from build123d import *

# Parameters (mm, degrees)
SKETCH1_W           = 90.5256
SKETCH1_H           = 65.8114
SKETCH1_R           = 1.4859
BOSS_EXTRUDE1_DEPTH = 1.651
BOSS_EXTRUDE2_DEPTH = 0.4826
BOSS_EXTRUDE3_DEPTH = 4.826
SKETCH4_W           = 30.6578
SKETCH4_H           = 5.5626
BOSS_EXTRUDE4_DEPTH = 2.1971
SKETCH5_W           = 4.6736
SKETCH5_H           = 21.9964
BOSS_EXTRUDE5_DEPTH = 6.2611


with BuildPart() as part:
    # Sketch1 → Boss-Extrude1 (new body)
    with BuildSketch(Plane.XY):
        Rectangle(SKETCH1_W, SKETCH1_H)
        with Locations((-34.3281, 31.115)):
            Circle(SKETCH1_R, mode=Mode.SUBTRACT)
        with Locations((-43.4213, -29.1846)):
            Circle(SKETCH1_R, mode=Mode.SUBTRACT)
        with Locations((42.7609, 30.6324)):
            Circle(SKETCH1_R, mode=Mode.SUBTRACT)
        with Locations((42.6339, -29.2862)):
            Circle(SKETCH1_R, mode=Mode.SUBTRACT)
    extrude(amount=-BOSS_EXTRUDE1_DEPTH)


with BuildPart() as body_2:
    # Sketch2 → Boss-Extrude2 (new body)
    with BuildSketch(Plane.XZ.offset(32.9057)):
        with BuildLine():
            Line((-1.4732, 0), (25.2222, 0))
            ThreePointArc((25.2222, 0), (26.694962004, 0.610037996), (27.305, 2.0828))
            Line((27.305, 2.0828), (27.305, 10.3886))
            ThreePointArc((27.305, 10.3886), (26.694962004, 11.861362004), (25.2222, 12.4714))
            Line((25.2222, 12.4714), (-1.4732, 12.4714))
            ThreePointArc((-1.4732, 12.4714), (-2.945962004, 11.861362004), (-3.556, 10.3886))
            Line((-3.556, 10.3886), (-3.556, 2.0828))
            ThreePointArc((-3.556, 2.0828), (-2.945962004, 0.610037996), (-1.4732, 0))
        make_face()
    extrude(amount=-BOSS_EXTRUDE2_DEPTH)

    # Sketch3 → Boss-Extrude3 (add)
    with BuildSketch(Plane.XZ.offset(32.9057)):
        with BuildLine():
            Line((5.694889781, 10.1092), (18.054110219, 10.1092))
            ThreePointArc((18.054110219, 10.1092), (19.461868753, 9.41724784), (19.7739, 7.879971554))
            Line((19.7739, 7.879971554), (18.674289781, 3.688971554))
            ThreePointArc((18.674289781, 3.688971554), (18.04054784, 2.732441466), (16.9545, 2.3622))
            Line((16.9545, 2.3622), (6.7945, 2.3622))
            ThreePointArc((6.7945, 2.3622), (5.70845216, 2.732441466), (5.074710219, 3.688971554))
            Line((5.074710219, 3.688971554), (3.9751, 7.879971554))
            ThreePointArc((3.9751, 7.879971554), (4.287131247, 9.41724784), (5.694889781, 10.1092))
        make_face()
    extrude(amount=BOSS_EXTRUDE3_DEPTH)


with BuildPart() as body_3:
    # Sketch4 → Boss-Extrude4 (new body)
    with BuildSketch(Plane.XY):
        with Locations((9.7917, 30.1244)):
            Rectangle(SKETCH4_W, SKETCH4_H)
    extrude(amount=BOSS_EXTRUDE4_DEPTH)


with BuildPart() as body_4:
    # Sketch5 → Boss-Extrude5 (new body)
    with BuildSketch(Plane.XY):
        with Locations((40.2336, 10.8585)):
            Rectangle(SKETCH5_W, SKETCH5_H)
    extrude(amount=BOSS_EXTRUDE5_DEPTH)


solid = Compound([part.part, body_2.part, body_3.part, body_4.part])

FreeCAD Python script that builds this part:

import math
import FreeCAD as App
import Part
import Sketcher
from FreeCAD import Vector
Q = App.Units.Quantity


def add_polygon(sketch, points):
    """Adds a closed chain of lines whose ends are joined by coincident constraints."""
    first, n = sketch.GeometryCount, len(points)
    for a, b in zip(points, points[1:] + points[:1]):
        sketch.addGeometry(Part.LineSegment(App.Vector(*a, 0), App.Vector(*b, 0)), False)
    for i in range(n):
        sketch.addConstraint(Sketcher.Constraint("Coincident", first + i, 2, first + (i + 1) % n, 1))

doc = App.newDocument("Part")
body = doc.addObject("PartDesign::Body", "Body")

# Sketch on XY plane
sketch1 = body.newObject("Sketcher::SketchObject", "Sketch")
sketch1.AttachmentSupport = (doc.getObject("XY_Plane"), [""])
sketch1.MapMode = "FlatFace"
add_polygon(sketch1, [(-45.2628, 32.9057), (-45.2628, -32.9057), (45.2628, -32.9057), (45.2628, 32.9057)])  # lines 0-3
sketch1.addGeometry(Part.Circle(Vector(-43.4213, -29.1846, 0), Vector(0, 0, 1), 1.4859), False)  # 4
sketch1.addGeometry(Part.Circle(Vector(42.6339, -29.2862, 0), Vector(0, 0, 1), 1.4859), False)  # 5
sketch1.addGeometry(Part.Circle(Vector(-34.3281, 31.115, 0), Vector(0, 0, 1), 1.4859), False)  # 6
sketch1.addGeometry(Part.Circle(Vector(42.7609, 30.6324, 0), Vector(0, 0, 1), 1.4859), False)  # 7
sketch1.addConstraint([
    Sketcher.Constraint("Vertical", 0),
    Sketcher.Constraint("Horizontal", 1),
    Sketcher.Constraint("Vertical", 2),
    Sketcher.Constraint("Horizontal", 3),
    Sketcher.Constraint("Equal", 4, 5),
    Sketcher.Constraint("Equal", 5, 6),
    Sketcher.Constraint("Equal", 6, 7),
    Sketcher.Constraint("Symmetric", 0, 2, 2, 2, -1, 1),
    Sketcher.Constraint("Diameter", 4, Q("0.117 in")),
    Sketcher.Constraint("DistanceX", 1, 1, 1, 2, Q("3.564 in")),
    Sketcher.Constraint("DistanceY", 0, 2, 0, 1, Q("2.591 in")),
    Sketcher.Constraint("DistanceX", 6, 3, 5, 3, Q("3.03 in")),
    Sketcher.Constraint("DistanceY", 4, 3, -1, 1, Q("1.149 in")),
    Sketcher.Constraint("DistanceY", 5, 3, -1, 1, Q("1.153 in")),
    Sketcher.Constraint("DistanceY", -1, 1, 6, 3, Q("1.225 in")),
    Sketcher.Constraint("DistanceY", -1, 1, 7, 3, Q("1.206 in")),
    Sketcher.Constraint("DistanceX", 4, 3, 5, 3, Q("3.388 in")),
    Sketcher.Constraint("DistanceX", 5, 3, 7, 3, Q("0.005 in")),
    Sketcher.Constraint("DistanceX", 4, 3, -1, 1, Q("1.7095 in")),
])
pad1 = body.newObject("PartDesign::Pad", "Pad")
pad1.Profile = sketch1
pad1.Length = Q("0.065 in")
pad1.Reversed = True
body2 = doc.addObject("PartDesign::Body", "Body001")

# Sketch on XZ plane
sketch2 = body2.newObject("Sketcher::SketchObject", "Sketch001")
sketch2.AttachmentSupport = (doc.getObject("XZ_Plane001"), [""])
sketch2.MapMode = "FlatFace"
sketch2.AttachmentOffset = App.Placement(Vector(0, 0, 1.2955 * 25.4), App.Rotation())
sketch2.addGeometry([
    Part.LineSegment(Vector(-1.4732, 0, 0), Vector(25.2222, 0, 0)),  # 0
    Part.ArcOfCircle(Part.Circle(Vector(25.2222, 2.0828, 0), Vector(0, 0, 1), 2.0828), math.radians(-90), math.radians(0)),  # 1
    Part.LineSegment(Vector(27.305, 2.0828, 0), Vector(27.305, 10.3886, 0)),  # 2
    Part.ArcOfCircle(Part.Circle(Vector(25.2222, 10.3886, 0), Vector(0, 0, 1), 2.0828), math.radians(0), math.radians(90)),  # 3
    Part.LineSegment(Vector(25.2222, 12.4714, 0), Vector(-1.4732, 12.4714, 0)),  # 4
    Part.ArcOfCircle(Part.Circle(Vector(-1.4732, 10.3886, 0), Vector(0, 0, 1), 2.0828), math.radians(90), math.radians(180)),  # 5
    Part.LineSegment(Vector(-3.556, 10.3886, 0), Vector(-3.556, 2.0828, 0)),  # 6
    Part.ArcOfCircle(Part.Circle(Vector(-1.4732, 2.0828, 0), Vector(0, 0, 1), 2.0828), math.radians(180), math.radians(270)),  # 7
], False)
sketch2.addConstraint([
    Sketcher.Constraint("Tangent", 0, 2, 1, 1),
    Sketcher.Constraint("Tangent", 1, 2, 2, 1),
    Sketcher.Constraint("Tangent", 2, 2, 3, 1),
    Sketcher.Constraint("Tangent", 3, 2, 4, 1),
    Sketcher.Constraint("Tangent", 4, 2, 5, 1),
    Sketcher.Constraint("Tangent", 5, 2, 6, 1),
    Sketcher.Constraint("Tangent", 6, 2, 7, 1),
    Sketcher.Constraint("Tangent", 7, 2, 0, 1),
    Sketcher.Constraint("Horizontal", 0),
    Sketcher.Constraint("Vertical", 2),
    Sketcher.Constraint("Horizontal", 4),
    Sketcher.Constraint("Vertical", 6),
    Sketcher.Constraint("Equal", 1, 3),
    Sketcher.Constraint("Equal", 3, 5),
    Sketcher.Constraint("Equal", 5, 7),
    Sketcher.Constraint("PointOnObject", 0, 2, -1),
    Sketcher.Constraint("Radius", 1, Q("0.082 in")),
    Sketcher.Constraint("DistanceX", 0, 1, 0, 2, Q("1.051 in")),
    Sketcher.Constraint("DistanceY", 2, 1, 2, 2, Q("0.327 in")),
    Sketcher.Constraint("DistanceX", 5, 2, -1, 1, Q("0.14 in")),
])
pad2 = body2.newObject("PartDesign::Pad", "Pad001")
pad2.Profile = sketch2
pad2.Length = Q("0.019 in")
pad2.Reversed = True

# Sketch on XZ plane
sketch3 = body2.newObject("Sketcher::SketchObject", "Sketch002")
sketch3.AttachmentSupport = (doc.getObject("XZ_Plane001"), [""])
sketch3.MapMode = "FlatFace"
sketch3.AttachmentOffset = App.Placement(Vector(0, 0, 1.2955 * 25.4), App.Rotation())
sketch3.addGeometry([
    Part.LineSegment(Vector(18.05411, 10.1092, 0), Vector(5.69489, 10.1092, 0)),  # 0
    Part.ArcOfCircle(Part.Circle(Vector(5.69489, 8.3312, 0), Vector(0, 0, 1), 1.778), math.radians(90), math.radians(194.70156)),  # 1
    Part.LineSegment(Vector(3.9751, 7.879972, 0), Vector(5.07471, 3.688972, 0)),  # 2
    Part.ArcOfCircle(Part.Circle(Vector(6.7945, 4.1402, 0), Vector(0, 0, 1), 1.778), math.radians(-165.29844), math.radians(-90)),  # 3
    Part.LineSegment(Vector(6.7945, 2.3622, 0), Vector(16.9545, 2.3622, 0)),  # 4
    Part.ArcOfCircle(Part.Circle(Vector(16.9545, 4.1402, 0), Vector(0, 0, 1), 1.778), math.radians(-90), math.radians(-14.70156)),  # 5
    Part.LineSegment(Vector(18.67429, 3.688972, 0), Vector(19.7739, 7.879972, 0)),  # 6
    Part.ArcOfCircle(Part.Circle(Vector(18.05411, 8.3312, 0), Vector(0, 0, 1), 1.778), math.radians(-14.70156), math.radians(90)),  # 7
], False)
sketch3.addConstraint([
    Sketcher.Constraint("Tangent", 0, 2, 1, 1),
    Sketcher.Constraint("Tangent", 1, 2, 2, 1),
    Sketcher.Constraint("Tangent", 2, 2, 3, 1),
    Sketcher.Constraint("Tangent", 3, 2, 4, 1),
    Sketcher.Constraint("Tangent", 4, 2, 5, 1),
    Sketcher.Constraint("Tangent", 5, 2, 6, 1),
    Sketcher.Constraint("Tangent", 6, 2, 7, 1),
    Sketcher.Constraint("Tangent", 7, 2, 0, 1),
    Sketcher.Constraint("Horizontal", 0),
    Sketcher.Constraint("Horizontal", 4),
    Sketcher.Constraint("Equal", 1, 3),
    Sketcher.Constraint("Equal", 3, 5),
    Sketcher.Constraint("Equal", 5, 7),
    Sketcher.Constraint("Horizontal", 2, 2, 5, 2),
    Sketcher.Constraint("Radius", 1, Q("0.07 in")),
    Sketcher.Constraint("DistanceX", 4, 1, 4, 2, Q("0.4 in")),
    Sketcher.Constraint("DistanceY", -1, 1, 1, 3, Q("0.328 in")),
    Sketcher.Constraint("DistanceY", -1, 1, 3, 3, Q("0.163 in")),
    Sketcher.Constraint("DistanceX", 1, 2, 3, 3, Q("0.111 in")),
    Sketcher.Constraint("DistanceX", -1, 1, 3, 3, Q("0.2675 in")),
])
pad3 = body2.newObject("PartDesign::Pad", "Pad002")
pad3.Profile = sketch3
pad3.Length = Q("0.19 in")
body3 = doc.addObject("PartDesign::Body", "Body002")

# Sketch on XY plane
sketch4 = body3.newObject("Sketcher::SketchObject", "Sketch003")
sketch4.AttachmentSupport = (doc.getObject("XY_Plane002"), [""])
sketch4.MapMode = "FlatFace"
add_polygon(sketch4, [(-5.5372, 32.9057), (-5.5372, 27.3431), (25.1206, 27.3431), (25.1206, 32.9057)])  # lines 0-3
sketch4.addConstraint([
    Sketcher.Constraint("Vertical", 0),
    Sketcher.Constraint("Horizontal", 1),
    Sketcher.Constraint("Vertical", 2),
    Sketcher.Constraint("Horizontal", 3),
    Sketcher.Constraint("DistanceX", 1, 1, 1, 2, Q("1.207 in")),
    Sketcher.Constraint("DistanceY", 0, 2, 0, 1, Q("0.219 in")),
    Sketcher.Constraint("DistanceX", 0, 2, -1, 1, Q("0.218 in")),
    Sketcher.Constraint("DistanceY", -1, 1, 0, 2, Q("1.0765 in")),
])
pad4 = body3.newObject("PartDesign::Pad", "Pad003")
pad4.Profile = sketch4
pad4.Length = Q("0.0865 in")
body4 = doc.addObject("PartDesign::Body", "Body003")

# Sketch on XY plane
sketch5 = body4.newObject("Sketcher::SketchObject", "Sketch004")
sketch5.AttachmentSupport = (doc.getObject("XY_Plane003"), [""])
sketch5.MapMode = "FlatFace"
add_polygon(sketch5, [(37.8968, 21.8567), (37.8968, -0.1397), (42.5704, -0.1397), (42.5704, 21.8567)])  # lines 0-3
sketch5.addConstraint([
    Sketcher.Constraint("Vertical", 0),
    Sketcher.Constraint("Horizontal", 1),
    Sketcher.Constraint("Vertical", 2),
    Sketcher.Constraint("Horizontal", 3),
    Sketcher.Constraint("DistanceX", 1, 1, 1, 2, Q("0.184 in")),
    Sketcher.Constraint("DistanceY", 0, 2, 0, 1, Q("0.866 in")),
    Sketcher.Constraint("DistanceX", -1, 1, 0, 2, Q("1.492 in")),
    Sketcher.Constraint("DistanceY", 0, 2, -1, 1, Q("0.0055 in")),
])
pad5 = body4.newObject("PartDesign::Pad", "Pad004")
pad5.Profile = sketch5
pad5.Length = Q("0.2465 in")

doc.recompute()
